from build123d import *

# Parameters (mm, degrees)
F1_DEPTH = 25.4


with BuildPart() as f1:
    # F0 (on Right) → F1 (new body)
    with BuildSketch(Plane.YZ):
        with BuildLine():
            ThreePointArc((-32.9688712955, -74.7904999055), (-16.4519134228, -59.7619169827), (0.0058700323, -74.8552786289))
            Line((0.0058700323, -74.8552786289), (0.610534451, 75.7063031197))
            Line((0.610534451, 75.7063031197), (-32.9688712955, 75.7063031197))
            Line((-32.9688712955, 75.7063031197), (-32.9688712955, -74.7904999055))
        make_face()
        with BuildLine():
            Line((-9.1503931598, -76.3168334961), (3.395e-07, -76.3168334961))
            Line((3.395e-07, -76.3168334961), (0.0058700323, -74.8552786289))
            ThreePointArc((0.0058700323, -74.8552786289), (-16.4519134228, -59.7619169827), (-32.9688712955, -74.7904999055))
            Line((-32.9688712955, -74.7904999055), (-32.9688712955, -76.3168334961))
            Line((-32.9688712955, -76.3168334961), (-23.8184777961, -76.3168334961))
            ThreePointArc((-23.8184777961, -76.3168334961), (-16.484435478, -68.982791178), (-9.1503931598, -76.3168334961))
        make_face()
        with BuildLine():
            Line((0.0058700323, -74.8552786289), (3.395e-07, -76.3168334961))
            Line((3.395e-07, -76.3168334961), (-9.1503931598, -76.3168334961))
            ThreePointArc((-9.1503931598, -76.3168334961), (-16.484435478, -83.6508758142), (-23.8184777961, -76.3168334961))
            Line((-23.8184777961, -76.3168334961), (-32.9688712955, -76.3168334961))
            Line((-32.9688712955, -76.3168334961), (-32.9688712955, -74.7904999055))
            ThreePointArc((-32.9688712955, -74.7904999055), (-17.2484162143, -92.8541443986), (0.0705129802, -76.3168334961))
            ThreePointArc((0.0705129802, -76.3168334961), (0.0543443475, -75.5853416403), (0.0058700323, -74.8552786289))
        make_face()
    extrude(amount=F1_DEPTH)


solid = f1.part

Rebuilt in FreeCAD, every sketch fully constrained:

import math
import FreeCAD as App
import Part
import Sketcher
from FreeCAD import Vector
Q = App.Units.Quantity

doc = App.newDocument("Part")
body = doc.addObject("PartDesign::Body", "Body")

sketch1 = body.newObject("Sketcher::SketchObject", "Sketch")
sketch1.AttachmentSupport = (doc.getObject("YZ_Plane"), [""])
sketch1.MapMode = "FlatFace"
sketch1.addGeometry([
    Part.LineSegment(Vector(0, -74.9, 0), Vector(0.6, 75.7, 0)),
    Part.LineSegment(Vector(0.6, 75.7, 0), Vector(-33, 75.7, 0)),
    Part.LineSegment(Vector(-33, 75.7, 0), Vector(-33, -74.8, 0)),
    Part.ArcOfCircle(Part.Circle(Vector(-16.5, -76.3, 0), Vector(0, 0, 1), 16.6), math.radians(175), math.radians(360)),
    Part.ArcOfCircle(Part.Circle(Vector(-16.5, -76.3, 0), Vector(0, 0, 1), 16.6), math.radians(0), math.radians(5.06)),
    Part.ArcOfCircle(Part.Circle(Vector(-16.5, -76.3, 0), Vector(0, 0, 1), 7.3), math.radians(0), math.radians(180)),
    Part.ArcOfCircle(Part.Circle(Vector(-16.5, -76.3, 0), Vector(0, 0, 1), 7.3), math.radians(180), math.radians(360)),
], False)
sketch1.addConstraint([
    Sketcher.Constraint("Coincident", 0, 2, 1, 1),
    Sketcher.Constraint("Coincident", 1, 2, 2, 1),
    Sketcher.Constraint("Coincident", 2, 2, 3, 1),
    Sketcher.Constraint("Tangent", 3, 2, 4, 1),
    Sketcher.Constraint("Coincident", 4, 2, 0, 1),
    Sketcher.Constraint("Tangent", 5, 1, 6, 2),
    Sketcher.Constraint("Coincident", 6, 1, 5, 2),
    Sketcher.Constraint("Horizontal", 1),
    Sketcher.Constraint("Vertical", 2),
    Sketcher.Constraint("Coincident", 5, 3, 3, 3),
    Sketcher.Constraint("Equal", 3, 4),
    Sketcher.Constraint("Horizontal", 6, 3, 3, 2),
    Sketcher.Constraint("Horizontal", 3, 2, 5, 1),
    Sketcher.Constraint("Horizontal", 5, 1, 6, 1),
    Sketcher.Constraint("Radius", 3, Q("16.554948 mm")),
    Sketcher.Constraint("Radius", 5, Q("7.334042 mm")),
    Sketcher.Constraint("DistanceY", 2, 2, -1, 1, Q("74.7905 mm")),
    Sketcher.Constraint("DistanceX", 1, 2, 1, 1, Q("33.579406 mm")),
    Sketcher.Constraint("DistanceY", 2, 2, 2, 1, Q("150.496803 mm")),
    Sketcher.Constraint("DistanceX", 1, 2, -1, 1, Q("32.968871 mm")),
    Sketcher.Constraint("DistanceX", -1, 1, 4, 2, Q("0.00587 mm")),
    Sketcher.Constraint("DistanceY", 4, 2, -1, 1, Q("74.855279 mm")),
])
pad1 = body.newObject("PartDesign::Pad", "Pad")
pad1.Profile = sketch1
pad1.Length = Q("1 in")

doc.recompute()
